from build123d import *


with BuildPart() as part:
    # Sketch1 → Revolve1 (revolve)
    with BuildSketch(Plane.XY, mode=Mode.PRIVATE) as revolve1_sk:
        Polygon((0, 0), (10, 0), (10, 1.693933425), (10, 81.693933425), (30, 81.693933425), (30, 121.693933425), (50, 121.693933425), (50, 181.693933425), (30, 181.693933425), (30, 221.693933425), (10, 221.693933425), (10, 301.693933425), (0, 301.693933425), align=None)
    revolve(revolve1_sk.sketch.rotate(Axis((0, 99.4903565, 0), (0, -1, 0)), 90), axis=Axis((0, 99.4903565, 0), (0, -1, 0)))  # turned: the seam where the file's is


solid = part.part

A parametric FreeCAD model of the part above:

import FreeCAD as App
import Part
import Sketcher


def add_polygon(sketch, points):
    """Adds a closed chain of lines whose ends are joined by coincident constraints."""
    first, n = sketch.GeometryCount, len(points)
    for a, b in zip(points, points[1:] + points[:1]):
        sketch.addGeometry(Part.LineSegment(App.Vector(*a, 0), App.Vector(*b, 0)), False)
    for i in range(n):
        sketch.addConstraint(Sketcher.Constraint("Coincident", first + i, 2, first + (i + 1) % n, 1))

doc = App.newDocument("Part")
body = doc.addObject("PartDesign::Body", "Body")

sketch1 = body.newObject("Sketcher::SketchObject", "Sketch")
sketch1.AttachmentSupport = (doc.getObject("XY_Plane"), [""])
sketch1.MapMode = "FlatFace"
add_polygon(sketch1, [(0, 0), (10, 0), (10, 82), (30, 82), (30, 122), (50, 122), (50, 182), (30, 182), (30, 222), (10, 222), (10, 302), (0, 302)])
sketch1.addConstraint([
    Sketcher.Constraint("Horizontal", 0),
    Sketcher.Constraint("Vertical", 1),
    Sketcher.Constraint("Horizontal", 2),
    Sketcher.Constraint("Vertical", 3),
    Sketcher.Constraint("Horizontal", 4),
    Sketcher.Constraint("Vertical", 5),
    Sketcher.Constraint("Horizontal", 6),
    Sketcher.Constraint("Vertical", 7),
    Sketcher.Constraint("Horizontal", 8),
    Sketcher.Constraint("Vertical", 9),
    Sketcher.Constraint("Horizontal", 10),
    Sketcher.Constraint("Vertical", 11),
    Sketcher.Constraint("Coincident", 11, 2, -1, 1),
    Sketcher.Constraint("Vertical", 3, 2, 6, 2),
    Sketcher.Constraint("Vertical", 1, 2, 8, 2),
    Sketcher.Constraint("Equal", 2, 4),
    Sketcher.Constraint("Equal", 3, 7),
    Sketcher.Constraint("DistanceX", 0, 1, 0, 2, 10.0),
    Sketcher.Constraint("DistanceX", 2, 1, 2, 2, 20.0),
    Sketcher.Constraint("DistanceY", 3, 1, 3, 2, 40.0),
    Sketcher.Constraint("DistanceY", 5, 1, 5, 2, 60.0),
    Sketcher.Constraint("DistanceY", 9, 1, 9, 2, 80.0),
    Sketcher.Constraint("DistanceY", 1, 1, 1, 2, 81.693933),
])
revolution = body.newObject("PartDesign::Revolution", "Revolution")
revolution.Profile = sketch1
revolution.ReferenceAxis = (sketch1, ["V_Axis"])
revolution.Angle = 360

doc.recompute()
